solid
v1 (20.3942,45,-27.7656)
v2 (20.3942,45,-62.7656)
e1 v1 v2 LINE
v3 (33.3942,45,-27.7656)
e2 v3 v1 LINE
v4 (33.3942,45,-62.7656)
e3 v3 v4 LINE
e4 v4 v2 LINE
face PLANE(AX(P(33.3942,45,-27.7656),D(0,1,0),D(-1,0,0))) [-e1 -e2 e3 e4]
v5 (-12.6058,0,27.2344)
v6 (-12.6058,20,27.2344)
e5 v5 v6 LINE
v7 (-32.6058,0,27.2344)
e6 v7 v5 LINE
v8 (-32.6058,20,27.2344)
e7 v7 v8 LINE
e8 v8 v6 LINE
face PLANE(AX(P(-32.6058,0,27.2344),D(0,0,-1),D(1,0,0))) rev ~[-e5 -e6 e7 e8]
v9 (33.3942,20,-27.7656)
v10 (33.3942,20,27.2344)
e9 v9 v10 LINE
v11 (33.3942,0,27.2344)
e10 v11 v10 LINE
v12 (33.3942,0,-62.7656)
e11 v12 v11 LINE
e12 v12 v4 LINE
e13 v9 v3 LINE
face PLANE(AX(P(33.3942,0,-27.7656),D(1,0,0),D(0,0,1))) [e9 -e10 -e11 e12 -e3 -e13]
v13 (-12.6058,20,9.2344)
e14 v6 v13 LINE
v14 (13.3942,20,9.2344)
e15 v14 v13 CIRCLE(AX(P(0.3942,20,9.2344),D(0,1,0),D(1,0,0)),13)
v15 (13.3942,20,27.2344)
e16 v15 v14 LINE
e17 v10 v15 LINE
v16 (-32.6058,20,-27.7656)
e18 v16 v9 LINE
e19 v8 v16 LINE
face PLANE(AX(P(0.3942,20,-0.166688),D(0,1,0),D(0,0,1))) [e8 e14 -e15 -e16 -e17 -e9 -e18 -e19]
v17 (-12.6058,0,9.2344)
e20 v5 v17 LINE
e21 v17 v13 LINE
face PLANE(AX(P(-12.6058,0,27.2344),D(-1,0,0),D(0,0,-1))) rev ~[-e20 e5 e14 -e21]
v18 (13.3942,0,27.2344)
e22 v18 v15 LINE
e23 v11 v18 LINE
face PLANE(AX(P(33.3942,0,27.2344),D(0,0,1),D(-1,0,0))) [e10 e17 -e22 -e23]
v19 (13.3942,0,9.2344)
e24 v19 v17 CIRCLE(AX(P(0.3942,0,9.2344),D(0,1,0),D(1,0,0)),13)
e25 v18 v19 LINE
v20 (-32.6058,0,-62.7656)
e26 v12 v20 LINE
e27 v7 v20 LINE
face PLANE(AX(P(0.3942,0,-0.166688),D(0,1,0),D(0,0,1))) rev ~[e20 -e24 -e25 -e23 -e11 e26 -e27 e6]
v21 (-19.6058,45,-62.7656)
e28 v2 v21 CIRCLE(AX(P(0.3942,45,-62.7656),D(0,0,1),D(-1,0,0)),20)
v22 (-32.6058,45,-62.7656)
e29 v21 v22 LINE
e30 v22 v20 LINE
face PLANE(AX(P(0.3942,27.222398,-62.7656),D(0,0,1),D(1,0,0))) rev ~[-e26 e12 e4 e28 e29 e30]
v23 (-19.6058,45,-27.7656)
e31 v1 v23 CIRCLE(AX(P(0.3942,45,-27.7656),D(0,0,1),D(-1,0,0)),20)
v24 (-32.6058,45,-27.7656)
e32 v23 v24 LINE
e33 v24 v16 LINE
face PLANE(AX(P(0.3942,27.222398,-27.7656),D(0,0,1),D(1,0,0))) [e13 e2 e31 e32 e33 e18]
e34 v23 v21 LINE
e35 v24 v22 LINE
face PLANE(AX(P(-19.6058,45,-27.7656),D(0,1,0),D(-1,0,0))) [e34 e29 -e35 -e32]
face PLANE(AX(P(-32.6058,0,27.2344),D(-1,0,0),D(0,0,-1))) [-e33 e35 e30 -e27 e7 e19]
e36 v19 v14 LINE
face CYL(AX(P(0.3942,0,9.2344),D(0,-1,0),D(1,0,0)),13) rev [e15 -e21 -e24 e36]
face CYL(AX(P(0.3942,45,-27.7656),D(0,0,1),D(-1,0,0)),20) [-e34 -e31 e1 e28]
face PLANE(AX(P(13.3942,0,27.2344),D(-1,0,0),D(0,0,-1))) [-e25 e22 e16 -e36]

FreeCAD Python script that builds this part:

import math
import FreeCAD as App
import Part
import Sketcher
Q = App.Units.Quantity

doc = App.newDocument("Part")
body = doc.addObject("PartDesign::Body", "Body")

# Sketch on XZ plane
sketch1 = doc.addObject("Sketcher::SketchObject", "Sketch")
body.addObject(sketch1)
sketch1.AttachmentSupport = (doc.XZ_Plane, [""])
sketch1.MapMode = "FlatFace"
sketch1.addGeometry([
    Part.LineSegment(App.Vector(-13, 9, 0), App.Vector(-13, 27, 0)),  # 0
    Part.LineSegment(App.Vector(-13, 27, 0), App.Vector(-33, 27, 0)),  # 1
    Part.LineSegment(App.Vector(-33, 27, 0), App.Vector(-33, -28, 0)),  # 2
    Part.LineSegment(App.Vector(-33, -28, 0), App.Vector(33, -28, 0)),  # 3
    Part.LineSegment(App.Vector(33, -28, 0), App.Vector(33, 27, 0)),  # 4
    Part.LineSegment(App.Vector(33, 27, 0), App.Vector(13, 27, 0)),  # 5
    Part.LineSegment(App.Vector(13, 27, 0), App.Vector(13, 9, 0)),  # 6
    Part.ArcOfCircle(Part.Circle(App.Vector(0, 9, 0), App.Vector(0, 0, 1), 13), math.radians(180), math.radians(360)),  # 7
], False)
sketch1.addConstraint([
    Sketcher.Constraint("Coincident", 0, 2, 1, 1),
    Sketcher.Constraint("Coincident", 1, 2, 2, 1),
    Sketcher.Constraint("Coincident", 2, 2, 3, 1),
    Sketcher.Constraint("Coincident", 3, 2, 4, 1),
    Sketcher.Constraint("Coincident", 4, 2, 5, 1),
    Sketcher.Constraint("Coincident", 5, 2, 6, 1),
    Sketcher.Constraint("Tangent", 6, 2, 7, 2),
    Sketcher.Constraint("Tangent", 7, 1, 0, 1),
    Sketcher.Constraint("Vertical", 0),
    Sketcher.Constraint("Horizontal", 1),
    Sketcher.Constraint("Vertical", 2),
    Sketcher.Constraint("Horizontal", 3),
    Sketcher.Constraint("Vertical", 4),
    Sketcher.Constraint("Horizontal", 5),
    Sketcher.Constraint("Vertical", 6),
    Sketcher.Constraint("Horizontal", 1, 2, 4, 2),
    Sketcher.Constraint("Equal", 1, 5),
    Sketcher.Constraint("Radius", 7, Q("13 mm")),
    Sketcher.Constraint("DistanceX", 1, 2, 1, 1, Q("20 mm")),
    Sketcher.Constraint("DistanceY", 0, 1, 0, 2, Q("18 mm")),
    Sketcher.Constraint("DistanceY", 2, 2, 2, 1, Q("55 mm")),
    Sketcher.Constraint("DistanceX", -1, 1, 7, 3, Q("0.3942 mm")),
    Sketcher.Constraint("DistanceY", -1, 1, 7, 3, Q("9.2344 mm")),
])
pad1 = doc.addObject("PartDesign::Pad", "Pad")
body.addObject(pad1)
pad1.Profile = sketch1
pad1.Length = 20
pad1.Reversed = True

# Sketch on XY plane
sketch2 = doc.addObject("Sketcher::SketchObject", "Sketch001")
body.addObject(sketch2)
sketch2.AttachmentSupport = (doc.XY_Plane, [""])
sketch2.MapMode = "FlatFace"
sketch2.AttachmentOffset = App.Placement(App.Vector(0, 0, -27.7656), App.Rotation())
sketch2.addGeometry([
    Part.LineSegment(App.Vector(-33, 45, 0), App.Vector(-20, 45, 0)),  # 0
    Part.ArcOfCircle(Part.Circle(App.Vector(0, 45, 0), App.Vector(0, 0, 1), 20), math.radians(0), math.radians(180)),  # 1
    Part.LineSegment(App.Vector(20, 45, 0), App.Vector(33, 45, 0)),  # 2
    Part.LineSegment(App.Vector(33, 45, 0), App.Vector(33, 0, 0)),  # 3
    Part.LineSegment(App.Vector(33, 0, 0), App.Vector(-33, 0, 0)),  # 4
    Part.LineSegment(App.Vector(-33, 0, 0), App.Vector(-33, 45, 0)),  # 5
], False)
sketch2.addConstraint([
    Sketcher.Constraint("Coincident", 0, 2, 1, 2),
    Sketcher.Constraint("Coincident", 1, 1, 2, 1),
    Sketcher.Constraint("Coincident", 2, 2, 3, 1),
    Sketcher.Constraint("Coincident", 3, 2, 4, 1),
    Sketcher.Constraint("Coincident", 4, 2, 5, 1),
    Sketcher.Constraint("Coincident", 5, 2, 0, 1),
    Sketcher.Constraint("Horizontal", 0),
    Sketcher.Constraint("Horizontal", 2),
    Sketcher.Constraint("Vertical", 3),
    Sketcher.Constraint("Horizontal", 4),
    Sketcher.Constraint("Vertical", 5),
    Sketcher.Constraint("PointOnObject", 3, 2, -1),
    Sketcher.Constraint("Horizontal", 1, 3, 0, 2),
    Sketcher.Constraint("Horizontal", 0, 2, 1, 1),
    Sketcher.Constraint("Equal", 0, 2),
    Sketcher.Constraint("Radius", 1, Q("20 mm")),
    Sketcher.Constraint("DistanceX", 0, 1, 0, 2, Q("13 mm")),
    Sketcher.Constraint("DistanceY", 3, 2, 3, 1, Q("45 mm")),
    Sketcher.Constraint("DistanceX", -1, 1, 1, 3, Q("0.3942 mm")),
])
pad2 = doc.addObject("PartDesign::Pad", "Pad001")
body.addObject(pad2)
pad2.Profile = sketch2
pad2.Length = 35
pad2.Reversed = True

doc.recompute()
